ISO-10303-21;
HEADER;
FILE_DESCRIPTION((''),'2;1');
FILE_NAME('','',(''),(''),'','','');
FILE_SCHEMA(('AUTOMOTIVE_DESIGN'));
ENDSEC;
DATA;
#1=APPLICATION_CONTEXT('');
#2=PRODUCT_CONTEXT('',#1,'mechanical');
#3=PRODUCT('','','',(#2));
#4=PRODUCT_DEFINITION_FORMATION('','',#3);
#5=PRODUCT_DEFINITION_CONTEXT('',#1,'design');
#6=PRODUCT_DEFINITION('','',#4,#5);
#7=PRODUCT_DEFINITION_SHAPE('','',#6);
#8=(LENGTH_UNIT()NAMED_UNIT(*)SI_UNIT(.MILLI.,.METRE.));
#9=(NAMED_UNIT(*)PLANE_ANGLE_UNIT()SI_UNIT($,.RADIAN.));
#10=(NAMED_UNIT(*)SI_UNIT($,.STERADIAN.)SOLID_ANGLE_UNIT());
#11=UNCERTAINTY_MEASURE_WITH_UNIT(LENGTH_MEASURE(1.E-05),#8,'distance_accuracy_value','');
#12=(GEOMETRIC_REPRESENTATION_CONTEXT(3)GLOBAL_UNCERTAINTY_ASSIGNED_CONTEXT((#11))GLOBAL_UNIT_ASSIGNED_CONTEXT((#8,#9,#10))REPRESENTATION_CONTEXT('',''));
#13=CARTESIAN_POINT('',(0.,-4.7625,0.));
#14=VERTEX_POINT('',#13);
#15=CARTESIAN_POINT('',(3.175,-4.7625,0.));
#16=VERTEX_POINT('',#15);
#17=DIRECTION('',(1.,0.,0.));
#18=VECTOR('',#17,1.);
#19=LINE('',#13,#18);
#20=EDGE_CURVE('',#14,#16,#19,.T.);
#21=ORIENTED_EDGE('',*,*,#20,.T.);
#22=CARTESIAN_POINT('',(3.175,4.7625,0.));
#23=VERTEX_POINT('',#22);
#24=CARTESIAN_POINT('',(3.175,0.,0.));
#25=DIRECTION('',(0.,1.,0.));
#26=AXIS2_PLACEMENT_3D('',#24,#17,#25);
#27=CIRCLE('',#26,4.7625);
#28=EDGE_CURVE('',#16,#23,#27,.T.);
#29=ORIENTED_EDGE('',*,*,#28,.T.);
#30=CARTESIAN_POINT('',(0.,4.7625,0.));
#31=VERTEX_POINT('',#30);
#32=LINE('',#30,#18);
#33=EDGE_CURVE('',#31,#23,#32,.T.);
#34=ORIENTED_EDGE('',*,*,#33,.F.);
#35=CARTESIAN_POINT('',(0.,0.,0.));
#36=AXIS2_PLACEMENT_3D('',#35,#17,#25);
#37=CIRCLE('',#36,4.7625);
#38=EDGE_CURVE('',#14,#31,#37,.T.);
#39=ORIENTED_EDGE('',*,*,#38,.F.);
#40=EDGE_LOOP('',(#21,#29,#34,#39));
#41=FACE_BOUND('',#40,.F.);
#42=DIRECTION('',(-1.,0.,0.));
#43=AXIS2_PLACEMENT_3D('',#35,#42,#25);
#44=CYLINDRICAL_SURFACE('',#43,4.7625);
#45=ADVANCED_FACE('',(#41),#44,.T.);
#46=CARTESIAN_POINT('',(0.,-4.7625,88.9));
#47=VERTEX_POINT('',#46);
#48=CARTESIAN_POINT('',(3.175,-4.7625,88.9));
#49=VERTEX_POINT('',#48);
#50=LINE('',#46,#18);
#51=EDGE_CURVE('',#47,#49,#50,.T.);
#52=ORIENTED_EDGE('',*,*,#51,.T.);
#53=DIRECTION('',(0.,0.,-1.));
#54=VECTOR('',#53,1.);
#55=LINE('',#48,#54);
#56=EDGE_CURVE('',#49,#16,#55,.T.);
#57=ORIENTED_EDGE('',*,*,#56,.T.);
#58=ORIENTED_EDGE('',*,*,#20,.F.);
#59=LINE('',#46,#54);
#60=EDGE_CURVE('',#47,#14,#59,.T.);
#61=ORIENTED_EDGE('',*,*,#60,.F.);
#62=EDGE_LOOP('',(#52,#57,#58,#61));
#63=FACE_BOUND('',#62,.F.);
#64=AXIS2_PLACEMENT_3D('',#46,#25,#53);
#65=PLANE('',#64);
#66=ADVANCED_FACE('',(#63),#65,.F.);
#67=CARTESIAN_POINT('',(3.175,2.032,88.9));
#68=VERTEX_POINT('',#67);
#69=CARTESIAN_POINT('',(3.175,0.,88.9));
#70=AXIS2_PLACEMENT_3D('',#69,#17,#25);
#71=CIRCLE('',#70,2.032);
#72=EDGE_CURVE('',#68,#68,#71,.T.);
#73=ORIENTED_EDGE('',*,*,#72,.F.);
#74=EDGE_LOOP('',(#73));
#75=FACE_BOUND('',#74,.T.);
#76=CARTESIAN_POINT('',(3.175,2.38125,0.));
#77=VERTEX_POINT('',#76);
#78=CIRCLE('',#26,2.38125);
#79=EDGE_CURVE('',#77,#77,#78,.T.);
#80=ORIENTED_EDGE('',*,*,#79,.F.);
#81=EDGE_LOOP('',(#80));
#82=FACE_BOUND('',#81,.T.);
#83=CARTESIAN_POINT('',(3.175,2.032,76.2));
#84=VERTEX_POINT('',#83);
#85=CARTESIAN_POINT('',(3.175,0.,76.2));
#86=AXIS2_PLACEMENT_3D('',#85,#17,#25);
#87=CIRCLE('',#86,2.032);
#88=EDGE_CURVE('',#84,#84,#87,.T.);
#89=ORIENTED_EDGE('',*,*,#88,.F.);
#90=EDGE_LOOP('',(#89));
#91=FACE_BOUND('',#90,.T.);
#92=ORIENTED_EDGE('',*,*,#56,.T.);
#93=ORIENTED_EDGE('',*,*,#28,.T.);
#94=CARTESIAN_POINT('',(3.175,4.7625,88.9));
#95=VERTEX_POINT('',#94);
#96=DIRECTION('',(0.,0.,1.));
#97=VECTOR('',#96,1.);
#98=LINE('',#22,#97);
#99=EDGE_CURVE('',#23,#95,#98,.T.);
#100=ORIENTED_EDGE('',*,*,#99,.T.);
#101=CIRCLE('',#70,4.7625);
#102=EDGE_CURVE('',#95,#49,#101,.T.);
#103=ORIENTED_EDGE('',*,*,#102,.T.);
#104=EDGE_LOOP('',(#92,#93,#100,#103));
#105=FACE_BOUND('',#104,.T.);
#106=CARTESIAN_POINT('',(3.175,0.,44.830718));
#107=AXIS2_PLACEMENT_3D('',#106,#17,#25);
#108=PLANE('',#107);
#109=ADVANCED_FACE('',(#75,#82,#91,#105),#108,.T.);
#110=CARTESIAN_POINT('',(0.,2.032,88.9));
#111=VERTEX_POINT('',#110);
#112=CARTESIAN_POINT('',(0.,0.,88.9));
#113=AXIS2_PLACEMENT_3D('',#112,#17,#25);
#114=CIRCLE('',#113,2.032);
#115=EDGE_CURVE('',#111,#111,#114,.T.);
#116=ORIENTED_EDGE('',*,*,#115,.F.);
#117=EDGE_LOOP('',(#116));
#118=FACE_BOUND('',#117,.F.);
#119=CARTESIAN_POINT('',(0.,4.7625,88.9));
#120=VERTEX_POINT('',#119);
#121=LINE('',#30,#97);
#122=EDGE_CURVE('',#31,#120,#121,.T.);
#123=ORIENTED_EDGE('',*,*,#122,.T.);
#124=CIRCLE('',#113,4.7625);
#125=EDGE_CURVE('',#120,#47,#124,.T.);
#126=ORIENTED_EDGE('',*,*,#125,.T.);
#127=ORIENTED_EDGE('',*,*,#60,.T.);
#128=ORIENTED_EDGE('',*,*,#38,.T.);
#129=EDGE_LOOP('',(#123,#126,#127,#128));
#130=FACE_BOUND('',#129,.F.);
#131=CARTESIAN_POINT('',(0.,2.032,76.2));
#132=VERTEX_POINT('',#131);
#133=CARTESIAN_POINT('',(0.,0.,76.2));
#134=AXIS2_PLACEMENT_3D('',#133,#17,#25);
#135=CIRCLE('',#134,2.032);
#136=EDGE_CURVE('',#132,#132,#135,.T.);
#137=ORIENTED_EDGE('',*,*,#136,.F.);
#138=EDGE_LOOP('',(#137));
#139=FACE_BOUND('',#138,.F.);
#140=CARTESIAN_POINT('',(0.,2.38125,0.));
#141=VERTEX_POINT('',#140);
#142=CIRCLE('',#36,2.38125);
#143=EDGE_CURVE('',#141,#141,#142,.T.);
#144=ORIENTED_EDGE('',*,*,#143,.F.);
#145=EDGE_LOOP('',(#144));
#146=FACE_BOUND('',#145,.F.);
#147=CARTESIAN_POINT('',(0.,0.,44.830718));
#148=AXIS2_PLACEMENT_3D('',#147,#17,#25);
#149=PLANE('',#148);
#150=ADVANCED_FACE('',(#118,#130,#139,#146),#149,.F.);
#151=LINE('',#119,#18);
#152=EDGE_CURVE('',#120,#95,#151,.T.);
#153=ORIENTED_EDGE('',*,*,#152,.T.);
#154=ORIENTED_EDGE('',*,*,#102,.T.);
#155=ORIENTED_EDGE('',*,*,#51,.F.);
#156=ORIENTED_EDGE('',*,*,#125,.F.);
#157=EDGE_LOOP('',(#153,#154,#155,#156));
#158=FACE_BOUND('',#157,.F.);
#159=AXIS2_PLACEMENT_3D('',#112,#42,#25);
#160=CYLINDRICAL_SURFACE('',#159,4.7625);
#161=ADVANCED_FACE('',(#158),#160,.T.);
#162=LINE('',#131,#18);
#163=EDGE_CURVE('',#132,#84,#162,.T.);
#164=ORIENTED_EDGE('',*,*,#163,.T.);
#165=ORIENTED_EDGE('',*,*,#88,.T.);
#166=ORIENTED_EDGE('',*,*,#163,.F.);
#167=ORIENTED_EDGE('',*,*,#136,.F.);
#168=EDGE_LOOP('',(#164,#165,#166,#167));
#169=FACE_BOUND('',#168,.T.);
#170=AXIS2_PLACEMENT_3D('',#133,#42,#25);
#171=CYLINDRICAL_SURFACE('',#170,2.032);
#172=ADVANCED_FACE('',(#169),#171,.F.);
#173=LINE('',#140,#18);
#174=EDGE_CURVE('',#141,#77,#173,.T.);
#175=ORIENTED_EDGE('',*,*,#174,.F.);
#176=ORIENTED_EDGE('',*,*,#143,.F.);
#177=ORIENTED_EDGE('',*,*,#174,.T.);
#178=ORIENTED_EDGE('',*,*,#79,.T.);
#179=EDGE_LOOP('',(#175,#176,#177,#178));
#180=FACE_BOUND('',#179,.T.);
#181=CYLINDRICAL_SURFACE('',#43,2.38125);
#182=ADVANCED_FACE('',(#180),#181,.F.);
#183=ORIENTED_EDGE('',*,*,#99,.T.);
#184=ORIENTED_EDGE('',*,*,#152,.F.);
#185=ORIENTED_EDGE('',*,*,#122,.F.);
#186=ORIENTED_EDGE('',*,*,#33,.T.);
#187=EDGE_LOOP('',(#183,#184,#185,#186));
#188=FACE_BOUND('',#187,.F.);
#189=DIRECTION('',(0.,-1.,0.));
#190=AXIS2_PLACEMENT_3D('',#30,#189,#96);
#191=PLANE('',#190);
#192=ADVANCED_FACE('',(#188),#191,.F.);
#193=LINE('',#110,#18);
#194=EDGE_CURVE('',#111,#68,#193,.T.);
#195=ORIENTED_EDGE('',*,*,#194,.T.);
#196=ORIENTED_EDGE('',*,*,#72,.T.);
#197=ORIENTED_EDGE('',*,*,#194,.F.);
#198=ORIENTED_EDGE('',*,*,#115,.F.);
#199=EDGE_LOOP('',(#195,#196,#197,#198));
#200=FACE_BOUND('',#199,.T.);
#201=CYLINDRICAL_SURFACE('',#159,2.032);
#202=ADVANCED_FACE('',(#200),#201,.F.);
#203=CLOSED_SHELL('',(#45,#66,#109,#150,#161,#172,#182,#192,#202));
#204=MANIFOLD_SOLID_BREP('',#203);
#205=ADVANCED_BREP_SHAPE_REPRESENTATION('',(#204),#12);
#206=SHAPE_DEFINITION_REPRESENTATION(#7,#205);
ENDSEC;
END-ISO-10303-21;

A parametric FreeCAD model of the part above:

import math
import FreeCAD as App
import Part
import Sketcher
Q = App.Units.Quantity

doc = App.newDocument("Part")
body = doc.addObject("PartDesign::Body", "Body")

# Sketch on YZ plane
sketch1 = doc.addObject("Sketcher::SketchObject", "Sketch")
body.addObject(sketch1)
sketch1.AttachmentSupport = (doc.YZ_Plane, [""])
sketch1.MapMode = "FlatFace"
sketch1.addGeometry([
    Part.LineSegment(App.Vector(4.7625, 0, 0), App.Vector(4.7625, 88.9, 0)),  # 0
    Part.ArcOfCircle(Part.Circle(App.Vector(0, 88.9, 0), App.Vector(0, 0, 1), 4.7625), math.radians(0), math.radians(180)),  # 1
    Part.LineSegment(App.Vector(-4.7625, 88.9, 0), App.Vector(-4.7625, 0, 0)),  # 2
    Part.ArcOfCircle(Part.Circle(App.Vector(0, 0, 0), App.Vector(0, 0, 1), 4.7625), math.radians(180), math.radians(360)),  # 3
    Part.Circle(App.Vector(0, 0, 0), App.Vector(0, 0, 1), 2.38125),  # 4
    Part.Circle(App.Vector(0, 76.2, 0), App.Vector(0, 0, 1), 2.032),  # 5
    Part.Circle(App.Vector(0, 88.9, 0), App.Vector(0, 0, 1), 2.032),  # 6
], False)
sketch1.addConstraint([
    Sketcher.Constraint("Tangent", 0, 2, 1, 1),
    Sketcher.Constraint("Tangent", 1, 2, 2, 1),
    Sketcher.Constraint("Tangent", 2, 2, 3, 1),
    Sketcher.Constraint("Tangent", 3, 2, 0, 1),
    Sketcher.Constraint("Vertical", 0),
    Sketcher.Constraint("Vertical", 2),
    Sketcher.Constraint("Coincident", 3, 3, -1, 1),
    Sketcher.Constraint("Coincident", 4, 3, -1, 1),
    Sketcher.Constraint("Coincident", 6, 3, 1, 3),
    Sketcher.Constraint("Equal", 5, 6),
    Sketcher.Constraint("PointOnObject", 5, 3, -2),
    Sketcher.Constraint("Diameter", 5, Q("0.16 in")),
    Sketcher.Constraint("Diameter", 4, Q("0.1875 in")),
    Sketcher.Constraint("DistanceY", 0, 1, 0, 2, Q("3.5 in")),
    Sketcher.Constraint("DistanceY", -1, 1, 5, 3, Q("3 in")),
    Sketcher.Constraint("Radius", 1, Q("0.1875 in")),
])
pad1 = doc.addObject("PartDesign::Pad", "Pad")
body.addObject(pad1)
pad1.Profile = sketch1
pad1.Length = Q("0.125 in")

doc.recompute()
